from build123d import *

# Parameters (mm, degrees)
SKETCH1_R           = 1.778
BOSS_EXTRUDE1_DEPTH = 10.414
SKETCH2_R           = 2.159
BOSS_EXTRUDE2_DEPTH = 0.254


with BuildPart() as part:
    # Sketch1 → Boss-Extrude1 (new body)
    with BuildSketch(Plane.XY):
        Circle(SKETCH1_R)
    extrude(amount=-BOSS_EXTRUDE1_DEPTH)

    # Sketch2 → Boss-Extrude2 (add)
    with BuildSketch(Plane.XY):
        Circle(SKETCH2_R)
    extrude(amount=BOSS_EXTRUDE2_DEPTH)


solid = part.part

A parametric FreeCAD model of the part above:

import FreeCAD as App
import Part
import Sketcher
Q = App.Units.Quantity

doc = App.newDocument("Part")
params = doc.addObject("Spreadsheet::Sheet", "Params")
for row, (alias, value) in enumerate([
    ("sketch1_diameter", "0.14 in"),
    ("pad1_length", "0.41 in"),
    ("sketch2_diameter", "0.17 in"),
    ("pad2_length", "0.01 in"),
], start=1):
    params.set(f"A{row}", alias)
    params.set(f"B{row}", "=" + value)
    params.setAlias(f"B{row}", alias)

body = doc.addObject("PartDesign::Body", "Body")

sketch1 = body.newObject("Sketcher::SketchObject", "Sketch")
sketch1.AttachmentSupport = (doc.getObject("XY_Plane"), [""])
sketch1.MapMode = "FlatFace"
sketch1.addGeometry(Part.Circle(App.Vector(0, 0, 0), App.Vector(0, 0, 1), 1.8), False)
sketch1.addConstraint([
    Sketcher.Constraint("Coincident", 0, 3, -1, 1),
    Sketcher.Constraint("Diameter", 0, Q("0.14 in")),
])
sketch1.setExpression("Constraints[1]", "Params.sketch1_diameter")
pad1 = body.newObject("PartDesign::Pad", "Pad")
pad1.Profile = sketch1
pad1.setExpression("Length", "Params.pad1_length")
pad1.Reversed = True

sketch2 = body.newObject("Sketcher::SketchObject", "Sketch001")
sketch2.AttachmentSupport = (doc.getObject("XY_Plane"), [""])
sketch2.MapMode = "FlatFace"
sketch2.addGeometry(Part.Circle(App.Vector(0, 0, 0), App.Vector(0, 0, 1), 2.2), False)
sketch2.addConstraint([
    Sketcher.Constraint("Coincident", 0, 3, -1, 1),
    Sketcher.Constraint("Diameter", 0, Q("0.17 in")),
])
sketch2.setExpression("Constraints[1]", "Params.sketch2_diameter")
pad2 = body.newObject("PartDesign::Pad", "Pad001")
pad2.Profile = sketch2
pad2.setExpression("Length", "Params.pad2_length")

doc.recompute()
